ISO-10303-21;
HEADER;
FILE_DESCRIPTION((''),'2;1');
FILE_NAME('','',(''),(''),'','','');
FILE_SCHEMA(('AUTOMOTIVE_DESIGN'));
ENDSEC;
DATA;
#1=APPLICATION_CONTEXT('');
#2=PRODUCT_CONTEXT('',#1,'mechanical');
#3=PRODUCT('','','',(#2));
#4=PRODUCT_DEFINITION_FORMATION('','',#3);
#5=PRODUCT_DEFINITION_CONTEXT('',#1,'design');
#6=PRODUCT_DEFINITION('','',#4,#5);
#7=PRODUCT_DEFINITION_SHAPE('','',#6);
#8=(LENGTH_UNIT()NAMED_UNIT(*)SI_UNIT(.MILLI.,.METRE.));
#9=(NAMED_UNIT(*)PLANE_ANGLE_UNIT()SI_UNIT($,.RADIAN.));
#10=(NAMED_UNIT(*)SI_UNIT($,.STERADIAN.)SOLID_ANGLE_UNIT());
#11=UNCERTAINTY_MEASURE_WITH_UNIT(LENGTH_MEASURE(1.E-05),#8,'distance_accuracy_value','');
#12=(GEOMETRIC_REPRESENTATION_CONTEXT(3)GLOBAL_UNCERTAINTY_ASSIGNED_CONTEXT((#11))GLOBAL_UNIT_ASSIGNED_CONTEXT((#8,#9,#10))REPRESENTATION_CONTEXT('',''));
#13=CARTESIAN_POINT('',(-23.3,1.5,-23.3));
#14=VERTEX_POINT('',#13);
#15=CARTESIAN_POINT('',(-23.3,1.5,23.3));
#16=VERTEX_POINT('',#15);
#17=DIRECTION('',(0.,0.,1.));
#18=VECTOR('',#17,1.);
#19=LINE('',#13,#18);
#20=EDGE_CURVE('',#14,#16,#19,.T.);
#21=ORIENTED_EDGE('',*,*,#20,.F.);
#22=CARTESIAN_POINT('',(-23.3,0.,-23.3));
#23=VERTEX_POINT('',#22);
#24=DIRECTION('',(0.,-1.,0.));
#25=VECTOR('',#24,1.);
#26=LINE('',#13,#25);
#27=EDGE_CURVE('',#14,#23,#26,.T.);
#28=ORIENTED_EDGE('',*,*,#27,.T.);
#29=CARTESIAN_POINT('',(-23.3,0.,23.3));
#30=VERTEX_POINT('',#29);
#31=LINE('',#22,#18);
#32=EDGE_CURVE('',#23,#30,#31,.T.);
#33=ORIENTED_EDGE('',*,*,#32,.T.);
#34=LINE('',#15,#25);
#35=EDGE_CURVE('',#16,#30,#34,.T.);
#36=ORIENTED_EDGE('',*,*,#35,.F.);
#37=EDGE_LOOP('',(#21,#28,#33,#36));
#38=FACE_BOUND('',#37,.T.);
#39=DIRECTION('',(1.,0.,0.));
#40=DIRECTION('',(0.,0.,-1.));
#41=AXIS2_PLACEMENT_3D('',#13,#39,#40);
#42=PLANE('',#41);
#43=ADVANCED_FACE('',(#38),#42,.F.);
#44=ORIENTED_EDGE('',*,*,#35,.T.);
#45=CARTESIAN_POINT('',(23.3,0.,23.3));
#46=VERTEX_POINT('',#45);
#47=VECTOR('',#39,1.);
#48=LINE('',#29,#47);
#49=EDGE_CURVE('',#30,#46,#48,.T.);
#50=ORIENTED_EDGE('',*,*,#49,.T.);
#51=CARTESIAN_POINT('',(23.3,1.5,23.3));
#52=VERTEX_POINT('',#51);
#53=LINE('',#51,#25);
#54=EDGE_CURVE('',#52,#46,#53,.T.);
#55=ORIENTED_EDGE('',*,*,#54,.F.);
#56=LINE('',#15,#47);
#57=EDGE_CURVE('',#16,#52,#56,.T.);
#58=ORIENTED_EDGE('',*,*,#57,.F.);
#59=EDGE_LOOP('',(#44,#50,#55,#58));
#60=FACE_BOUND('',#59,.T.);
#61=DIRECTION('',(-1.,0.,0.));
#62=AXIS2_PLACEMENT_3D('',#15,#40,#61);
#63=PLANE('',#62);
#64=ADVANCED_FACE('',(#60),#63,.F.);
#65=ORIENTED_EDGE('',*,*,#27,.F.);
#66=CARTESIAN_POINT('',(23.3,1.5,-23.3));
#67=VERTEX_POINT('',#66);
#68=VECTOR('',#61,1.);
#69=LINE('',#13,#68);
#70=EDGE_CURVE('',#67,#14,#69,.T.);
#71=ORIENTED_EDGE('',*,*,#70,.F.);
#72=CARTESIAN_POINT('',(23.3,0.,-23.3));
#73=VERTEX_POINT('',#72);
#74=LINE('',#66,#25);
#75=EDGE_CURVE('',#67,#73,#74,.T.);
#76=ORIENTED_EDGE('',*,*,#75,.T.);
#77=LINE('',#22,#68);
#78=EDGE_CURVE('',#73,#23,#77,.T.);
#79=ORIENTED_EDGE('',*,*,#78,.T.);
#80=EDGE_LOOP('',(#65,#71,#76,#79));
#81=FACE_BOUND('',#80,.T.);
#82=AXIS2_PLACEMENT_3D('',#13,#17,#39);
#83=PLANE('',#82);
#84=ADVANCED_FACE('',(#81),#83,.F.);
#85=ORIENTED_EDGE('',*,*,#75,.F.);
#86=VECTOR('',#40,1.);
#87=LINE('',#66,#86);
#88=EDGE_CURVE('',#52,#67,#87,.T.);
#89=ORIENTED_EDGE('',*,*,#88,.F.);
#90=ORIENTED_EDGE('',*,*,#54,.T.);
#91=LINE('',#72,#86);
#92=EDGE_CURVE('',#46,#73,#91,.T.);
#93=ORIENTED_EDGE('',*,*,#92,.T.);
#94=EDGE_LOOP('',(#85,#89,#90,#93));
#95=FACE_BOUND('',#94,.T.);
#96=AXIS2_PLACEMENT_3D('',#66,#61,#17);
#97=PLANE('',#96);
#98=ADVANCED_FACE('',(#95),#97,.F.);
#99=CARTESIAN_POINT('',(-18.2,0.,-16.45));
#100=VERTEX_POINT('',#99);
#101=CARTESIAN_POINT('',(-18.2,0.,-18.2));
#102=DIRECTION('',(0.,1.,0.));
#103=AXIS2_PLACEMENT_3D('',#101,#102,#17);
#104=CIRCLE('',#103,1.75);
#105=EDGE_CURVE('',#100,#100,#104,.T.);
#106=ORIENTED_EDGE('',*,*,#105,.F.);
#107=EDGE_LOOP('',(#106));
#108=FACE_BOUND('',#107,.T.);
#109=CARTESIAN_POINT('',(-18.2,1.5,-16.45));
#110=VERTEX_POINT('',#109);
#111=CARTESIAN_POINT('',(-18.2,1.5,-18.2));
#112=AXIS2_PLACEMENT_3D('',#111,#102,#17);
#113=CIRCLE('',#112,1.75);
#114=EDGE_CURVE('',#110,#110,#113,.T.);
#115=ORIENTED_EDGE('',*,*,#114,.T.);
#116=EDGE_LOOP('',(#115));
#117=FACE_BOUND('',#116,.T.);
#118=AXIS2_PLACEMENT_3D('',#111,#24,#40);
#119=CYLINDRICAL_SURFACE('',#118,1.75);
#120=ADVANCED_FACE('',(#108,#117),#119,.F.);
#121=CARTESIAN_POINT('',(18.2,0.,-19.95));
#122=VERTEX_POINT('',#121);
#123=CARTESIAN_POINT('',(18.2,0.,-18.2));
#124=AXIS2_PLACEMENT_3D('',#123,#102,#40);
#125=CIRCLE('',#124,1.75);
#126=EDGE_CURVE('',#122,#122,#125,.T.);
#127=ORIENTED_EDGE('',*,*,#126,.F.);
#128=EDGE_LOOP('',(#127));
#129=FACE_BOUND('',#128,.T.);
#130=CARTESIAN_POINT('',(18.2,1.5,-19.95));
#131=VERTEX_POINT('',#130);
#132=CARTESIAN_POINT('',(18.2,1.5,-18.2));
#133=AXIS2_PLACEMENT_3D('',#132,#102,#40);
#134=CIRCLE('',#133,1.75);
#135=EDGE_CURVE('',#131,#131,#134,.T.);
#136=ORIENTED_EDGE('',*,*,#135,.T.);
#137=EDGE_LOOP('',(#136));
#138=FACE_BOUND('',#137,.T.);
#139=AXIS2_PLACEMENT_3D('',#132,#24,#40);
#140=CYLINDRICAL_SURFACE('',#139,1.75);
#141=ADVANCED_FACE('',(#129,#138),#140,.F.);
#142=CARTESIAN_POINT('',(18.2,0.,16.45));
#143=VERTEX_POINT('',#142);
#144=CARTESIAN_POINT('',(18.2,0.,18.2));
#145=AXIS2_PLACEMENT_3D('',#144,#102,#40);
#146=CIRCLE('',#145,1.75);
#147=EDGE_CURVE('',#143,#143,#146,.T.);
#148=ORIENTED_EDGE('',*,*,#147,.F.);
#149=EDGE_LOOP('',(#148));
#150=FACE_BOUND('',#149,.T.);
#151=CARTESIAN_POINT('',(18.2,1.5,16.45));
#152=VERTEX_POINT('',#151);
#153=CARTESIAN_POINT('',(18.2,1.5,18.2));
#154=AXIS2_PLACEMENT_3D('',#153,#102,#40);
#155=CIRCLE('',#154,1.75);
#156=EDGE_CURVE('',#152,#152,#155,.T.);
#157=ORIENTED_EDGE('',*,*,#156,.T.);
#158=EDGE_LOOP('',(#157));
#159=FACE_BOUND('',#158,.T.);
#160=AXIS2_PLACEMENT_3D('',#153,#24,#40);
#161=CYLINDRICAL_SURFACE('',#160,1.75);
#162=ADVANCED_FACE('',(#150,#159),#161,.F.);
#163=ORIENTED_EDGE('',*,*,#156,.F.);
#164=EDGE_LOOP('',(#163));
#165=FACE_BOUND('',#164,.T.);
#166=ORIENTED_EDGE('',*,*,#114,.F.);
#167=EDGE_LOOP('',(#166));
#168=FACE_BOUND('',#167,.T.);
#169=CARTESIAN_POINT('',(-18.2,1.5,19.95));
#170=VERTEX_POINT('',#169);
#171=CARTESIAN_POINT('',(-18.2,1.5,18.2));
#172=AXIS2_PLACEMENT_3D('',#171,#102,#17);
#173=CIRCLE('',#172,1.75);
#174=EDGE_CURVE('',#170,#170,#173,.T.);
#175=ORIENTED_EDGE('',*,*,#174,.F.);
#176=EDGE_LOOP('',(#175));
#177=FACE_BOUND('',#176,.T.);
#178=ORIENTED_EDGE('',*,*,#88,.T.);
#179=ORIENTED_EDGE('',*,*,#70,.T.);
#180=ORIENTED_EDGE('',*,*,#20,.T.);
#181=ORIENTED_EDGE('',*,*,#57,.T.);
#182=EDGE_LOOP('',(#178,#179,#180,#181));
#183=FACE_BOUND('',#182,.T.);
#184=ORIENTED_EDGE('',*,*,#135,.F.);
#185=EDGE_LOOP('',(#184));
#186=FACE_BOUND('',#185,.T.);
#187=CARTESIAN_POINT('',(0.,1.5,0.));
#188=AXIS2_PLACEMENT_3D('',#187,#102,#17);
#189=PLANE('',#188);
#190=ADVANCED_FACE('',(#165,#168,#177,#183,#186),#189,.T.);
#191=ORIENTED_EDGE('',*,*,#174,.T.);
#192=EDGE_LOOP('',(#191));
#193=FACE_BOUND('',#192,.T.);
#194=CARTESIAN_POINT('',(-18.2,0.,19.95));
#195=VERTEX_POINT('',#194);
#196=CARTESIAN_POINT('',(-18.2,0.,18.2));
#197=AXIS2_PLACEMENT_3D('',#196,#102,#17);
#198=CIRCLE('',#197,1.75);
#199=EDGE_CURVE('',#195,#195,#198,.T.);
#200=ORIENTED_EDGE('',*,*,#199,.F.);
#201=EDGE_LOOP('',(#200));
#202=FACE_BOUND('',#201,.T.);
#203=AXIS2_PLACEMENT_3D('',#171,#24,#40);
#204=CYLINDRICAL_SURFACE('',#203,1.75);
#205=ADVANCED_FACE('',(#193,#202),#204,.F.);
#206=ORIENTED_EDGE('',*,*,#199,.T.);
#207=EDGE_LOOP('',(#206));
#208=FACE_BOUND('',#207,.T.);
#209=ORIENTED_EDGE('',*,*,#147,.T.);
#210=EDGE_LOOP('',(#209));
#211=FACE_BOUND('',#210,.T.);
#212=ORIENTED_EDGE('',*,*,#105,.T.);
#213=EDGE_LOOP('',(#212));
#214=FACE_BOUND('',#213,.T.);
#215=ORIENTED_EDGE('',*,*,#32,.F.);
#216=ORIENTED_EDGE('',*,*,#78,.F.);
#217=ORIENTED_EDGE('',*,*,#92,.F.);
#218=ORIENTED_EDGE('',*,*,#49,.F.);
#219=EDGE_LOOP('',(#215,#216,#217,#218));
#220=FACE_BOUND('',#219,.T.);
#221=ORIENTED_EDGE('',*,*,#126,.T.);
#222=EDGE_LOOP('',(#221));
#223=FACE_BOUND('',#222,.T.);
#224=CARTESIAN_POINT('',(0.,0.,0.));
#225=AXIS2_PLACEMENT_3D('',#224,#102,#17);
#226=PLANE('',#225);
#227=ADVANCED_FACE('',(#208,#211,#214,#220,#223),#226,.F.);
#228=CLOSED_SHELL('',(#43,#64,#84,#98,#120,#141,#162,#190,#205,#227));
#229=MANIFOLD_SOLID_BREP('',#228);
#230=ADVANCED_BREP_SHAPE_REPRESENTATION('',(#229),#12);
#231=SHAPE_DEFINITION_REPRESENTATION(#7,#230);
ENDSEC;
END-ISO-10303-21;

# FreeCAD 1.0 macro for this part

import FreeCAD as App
import Part
import Sketcher
from FreeCAD import Vector
Q = App.Units.Quantity


def add_polygon(sketch, points):
    """Adds a closed chain of lines whose ends are joined by coincident constraints."""
    first, n = sketch.GeometryCount, len(points)
    for a, b in zip(points, points[1:] + points[:1]):
        sketch.addGeometry(Part.LineSegment(App.Vector(*a, 0), App.Vector(*b, 0)), False)
    for i in range(n):
        sketch.addConstraint(Sketcher.Constraint("Coincident", first + i, 2, first + (i + 1) % n, 1))

doc = App.newDocument("Part")
body = doc.addObject("PartDesign::Body", "Body")

# Sketch on XZ plane
sketch1 = body.newObject("Sketcher::SketchObject", "Sketch")
sketch1.AttachmentSupport = (doc.getObject("XZ_Plane"), [""])
sketch1.MapMode = "FlatFace"
add_polygon(sketch1, [(-23.3, -23.3), (-23.3, 23.3), (23.3, 23.3), (23.3, -23.3)])  # lines 0-3
sketch1.addGeometry(Part.Circle(Vector(-18.2, 18.2, 0), Vector(0, 0, 1), 1.8), False)  # 4
sketch1.addGeometry(Part.Circle(Vector(18.2, 18.2, 0), Vector(0, 0, 1), 1.8), False)  # 5
sketch1.addGeometry(Part.Circle(Vector(-18.2, -18.2, 0), Vector(0, 0, 1), 1.8), False)  # 6
sketch1.addGeometry(Part.Circle(Vector(18.2, -18.2, 0), Vector(0, 0, 1), 1.8), False)  # 7
sketch1.addConstraint([
    Sketcher.Constraint("Vertical", 0),
    Sketcher.Constraint("Horizontal", 1),
    Sketcher.Constraint("Vertical", 2),
    Sketcher.Constraint("Horizontal", 3),
    Sketcher.Constraint("Equal", 4, 5),
    Sketcher.Constraint("Equal", 5, 6),
    Sketcher.Constraint("Equal", 6, 7),
    Sketcher.Constraint("Symmetric", 5, 3, 6, 3, -1, 1),
    Sketcher.Constraint("Symmetric", 4, 3, 7, 3, -1, 1),
    Sketcher.Constraint("Symmetric", 0, 2, 2, 2, -1, 1),
    Sketcher.Constraint("Symmetric", 4, 3, 5, 3, -2),
    Sketcher.Constraint("Equal", 3, 0),
    Sketcher.Constraint("Diameter", 4, Q("3.5 mm")),
    Sketcher.Constraint("DistanceX", 1, 1, 1, 2, Q("46.6 mm")),
    Sketcher.Constraint("DistanceX", 4, 3, -1, 1, Q("18.2 mm")),
    Sketcher.Constraint("DistanceY", -1, 1, 4, 3, Q("18.2 mm")),
])
pad1 = body.newObject("PartDesign::Pad", "Pad")
pad1.Profile = sketch1
pad1.Length = 1.5
pad1.Reversed = True

doc.recompute()
